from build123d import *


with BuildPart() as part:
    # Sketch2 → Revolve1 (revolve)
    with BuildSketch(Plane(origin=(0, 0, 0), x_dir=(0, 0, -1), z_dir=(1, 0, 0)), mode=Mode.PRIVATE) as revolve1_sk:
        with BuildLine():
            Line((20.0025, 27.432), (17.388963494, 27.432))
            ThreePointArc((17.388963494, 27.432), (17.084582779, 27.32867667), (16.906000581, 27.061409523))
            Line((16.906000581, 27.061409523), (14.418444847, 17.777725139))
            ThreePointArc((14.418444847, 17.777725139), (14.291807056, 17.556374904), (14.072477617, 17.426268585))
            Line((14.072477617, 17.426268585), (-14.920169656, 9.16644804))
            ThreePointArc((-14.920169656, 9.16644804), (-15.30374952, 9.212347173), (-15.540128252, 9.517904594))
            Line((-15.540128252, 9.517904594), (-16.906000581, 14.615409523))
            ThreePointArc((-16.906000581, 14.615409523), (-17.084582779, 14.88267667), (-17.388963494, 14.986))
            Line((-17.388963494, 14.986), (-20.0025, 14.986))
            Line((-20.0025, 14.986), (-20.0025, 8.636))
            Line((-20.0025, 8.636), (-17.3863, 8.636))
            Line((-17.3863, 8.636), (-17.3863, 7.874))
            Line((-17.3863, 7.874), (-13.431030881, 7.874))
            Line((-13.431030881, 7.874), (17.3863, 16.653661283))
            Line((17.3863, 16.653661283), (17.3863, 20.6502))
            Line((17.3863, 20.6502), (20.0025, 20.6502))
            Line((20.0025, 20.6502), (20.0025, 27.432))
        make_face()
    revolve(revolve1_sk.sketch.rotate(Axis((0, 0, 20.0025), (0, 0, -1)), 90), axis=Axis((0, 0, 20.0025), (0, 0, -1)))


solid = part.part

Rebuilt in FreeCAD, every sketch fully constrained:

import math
import FreeCAD as App
import Part
import Sketcher
Q = App.Units.Quantity

doc = App.newDocument("Part")
body = doc.addObject("PartDesign::Body", "Body")

# Sketch on YZ plane
sketch1 = body.newObject("Sketcher::SketchObject", "Sketch")
sketch1.AttachmentSupport = (doc.getObject("YZ_Plane"), [""])
sketch1.MapMode = "FlatFace"
sketch1.addGeometry([
    Part.LineSegment(App.Vector(27.43, -20, 0), App.Vector(27.43, -17.39, 0)),  # 0
    Part.ArcOfCircle(Part.Circle(App.Vector(26.93, -17.39, 0), App.Vector(0, 0, 1), 0.5), math.radians(0), math.radians(75)),  # 1
    Part.LineSegment(App.Vector(27.06, -16.91, 0), App.Vector(17.78, -14.42, 0)),  # 2
    Part.ArcOfCircle(Part.Circle(App.Vector(17.91, -13.94, 0), App.Vector(0, 0, 1), 0.5), math.radians(-164), math.radians(-105)),  # 3
    Part.LineSegment(App.Vector(17.43, -14.07, 0), App.Vector(9.17, 14.92, 0)),  # 4
    Part.ArcOfCircle(Part.Circle(App.Vector(9.65, 15.06, 0), App.Vector(0, 0, 1), 0.5), math.radians(105), math.radians(196)),  # 5
    Part.LineSegment(App.Vector(9.52, 15.54, 0), App.Vector(14.62, 16.91, 0)),  # 6
    Part.ArcOfCircle(Part.Circle(App.Vector(14.49, 17.39, 0), App.Vector(0, 0, 1), 0.5), math.radians(-75), math.radians(0)),  # 7
    Part.LineSegment(App.Vector(14.99, 17.39, 0), App.Vector(14.99, 20, 0)),  # 8
    Part.LineSegment(App.Vector(14.99, 20, 0), App.Vector(8.64, 20, 0)),  # 9
    Part.LineSegment(App.Vector(8.64, 20, 0), App.Vector(8.64, 17.39, 0)),  # 10
    Part.LineSegment(App.Vector(8.64, 17.39, 0), App.Vector(7.87, 17.39, 0)),  # 11
    Part.LineSegment(App.Vector(7.87, 17.39, 0), App.Vector(7.87, 13.43, 0)),  # 12
    Part.LineSegment(App.Vector(7.87, 13.43, 0), App.Vector(16.65, -17.39, 0)),  # 13
    Part.LineSegment(App.Vector(16.65, -17.39, 0), App.Vector(20.65, -17.39, 0)),  # 14
    Part.LineSegment(App.Vector(20.65, -17.39, 0), App.Vector(20.65, -20, 0)),  # 15
    Part.LineSegment(App.Vector(20.65, -20, 0), App.Vector(27.43, -20, 0)),  # 16
], False)
sketch1.addConstraint([
    Sketcher.Constraint("Tangent", 0, 2, 1, 1),
    Sketcher.Constraint("Tangent", 1, 2, 2, 1),
    Sketcher.Constraint("Tangent", 2, 2, 3, 2),
    Sketcher.Constraint("Tangent", 3, 1, 4, 1),
    Sketcher.Constraint("Tangent", 4, 2, 5, 2),
    Sketcher.Constraint("Tangent", 5, 1, 6, 1),
    Sketcher.Constraint("Tangent", 6, 2, 7, 1),
    Sketcher.Constraint("Tangent", 7, 2, 8, 1),
    Sketcher.Constraint("Coincident", 8, 2, 9, 1),
    Sketcher.Constraint("Coincident", 9, 2, 10, 1),
    Sketcher.Constraint("Coincident", 10, 2, 11, 1),
    Sketcher.Constraint("Coincident", 11, 2, 12, 1),
    Sketcher.Constraint("Coincident", 12, 2, 13, 1),
    Sketcher.Constraint("Coincident", 13, 2, 14, 1),
    Sketcher.Constraint("Coincident", 14, 2, 15, 1),
    Sketcher.Constraint("Coincident", 15, 2, 16, 1),
    Sketcher.Constraint("Coincident", 16, 2, 0, 1),
    Sketcher.Constraint("Vertical", 0),
    Sketcher.Constraint("Vertical", 8),
    Sketcher.Constraint("Horizontal", 9),
    Sketcher.Constraint("Vertical", 10),
    Sketcher.Constraint("Horizontal", 11),
    Sketcher.Constraint("Vertical", 12),
    Sketcher.Constraint("Horizontal", 14),
    Sketcher.Constraint("Vertical", 15),
    Sketcher.Constraint("Horizontal", 16),
    Sketcher.Constraint("Equal", 1, 3),
    Sketcher.Constraint("Equal", 3, 5),
    Sketcher.Constraint("Equal", 5, 7),
    Sketcher.Constraint("Parallel", 4, 13),
    Sketcher.Constraint("Equal", 0, 8),
    Sketcher.Constraint("Equal", 10, 15),
    Sketcher.Constraint("Angle", 2, Q("165 deg")),
    Sketcher.Constraint("Angle", 6, Q("15 deg")),
    Sketcher.Constraint("DistanceX", 9, 2, 9, 1, Q("0.25 in")),
    Sketcher.Constraint("DistanceX", 11, 2, 11, 1, Q("0.03 in")),
    Sketcher.Constraint("DistanceX", 16, 1, 16, 2, Q("0.267 in")),
    Sketcher.Constraint("DistanceY", 10, 2, 10, 1, Q("0.103 in")),
    Sketcher.Constraint("DistanceX", -1, 1, 0, 2, Q("1.08 in")),
    Sketcher.Constraint("DistanceX", -1, 1, 7, 2, Q("0.59 in")),
    Sketcher.Constraint("Radius", 1, 0.5),
    Sketcher.Constraint("DistanceY", -1, 1, 8, 2, Q("0.7875 in")),
    Sketcher.Constraint("DistanceY", 13, 2, -1, 1, Q("0.6845 in")),
    Sketcher.Constraint("DistanceX", 14, 1, 14, 2, 3.996539),
    Sketcher.Constraint("DistanceY", 12, 2, 12, 1, 3.955269),
    Sketcher.Constraint("DistanceY", 1, 2, -1, 1, 16.906001),
    Sketcher.Constraint("DistanceY", 5, 3, 7, 3, 2.331798),
])
revolution = body.newObject("PartDesign::Revolution", "Revolution")
revolution.Profile = sketch1
revolution.ReferenceAxis = (sketch1, ["V_Axis"])
revolution.Angle = 360

doc.recompute()
